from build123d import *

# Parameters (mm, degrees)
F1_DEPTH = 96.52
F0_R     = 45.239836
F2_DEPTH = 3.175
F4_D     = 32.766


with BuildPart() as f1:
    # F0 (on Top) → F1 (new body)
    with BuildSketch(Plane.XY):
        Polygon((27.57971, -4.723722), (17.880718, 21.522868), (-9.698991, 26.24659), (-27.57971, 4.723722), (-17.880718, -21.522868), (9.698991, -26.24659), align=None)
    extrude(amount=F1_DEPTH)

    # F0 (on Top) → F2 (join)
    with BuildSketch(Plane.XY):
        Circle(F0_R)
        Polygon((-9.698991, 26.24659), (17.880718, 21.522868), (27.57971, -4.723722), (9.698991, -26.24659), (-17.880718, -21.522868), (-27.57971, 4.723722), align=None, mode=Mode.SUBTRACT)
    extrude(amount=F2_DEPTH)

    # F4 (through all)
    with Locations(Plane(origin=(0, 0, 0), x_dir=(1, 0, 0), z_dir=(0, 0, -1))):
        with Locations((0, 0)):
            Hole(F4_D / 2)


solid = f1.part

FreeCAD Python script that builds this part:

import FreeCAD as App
import Part
import Sketcher

V = App.Vector
Q = App.Units.Quantity


def add_polygon(sketch, points):
    """Adds a closed chain of lines whose ends are joined by coincident constraints."""
    first, n = sketch.GeometryCount, len(points)
    for a, b in zip(points, points[1:] + points[:1]):
        sketch.addGeometry(Part.LineSegment(App.Vector(*a, 0), App.Vector(*b, 0)), False)
    for i in range(n):
        sketch.addConstraint(Sketcher.Constraint("Coincident", first + i, 2, first + (i + 1) % n, 1))

doc = App.newDocument("Part")
body = doc.addObject("PartDesign::Body", "Body")

# Sketch on XY plane
sketch1 = doc.addObject("Sketcher::SketchObject", "Sketch")
body.addObject(sketch1)
sketch1.AttachmentSupport = (doc.XY_Plane, [""])
sketch1.MapMode = "FlatFace"
add_polygon(sketch1, [(28, -5), (18, 22), (-10, 26), (-28, 5), (-18, -22), (10, -26)])  # lines 0-5
sketch1.addConstraint(Sketcher.Constraint("Symmetric", 0, 2, 3, 2, -1, 1))
sketch1.addConstraint(Sketcher.Constraint("Symmetric", 1, 2, 4, 2, -1, 1))
sketch1.addConstraint(Sketcher.Constraint("Symmetric", 2, 2, 5, 2, -1, 1))
sketch1.addConstraint(Sketcher.Constraint("Equal", 0, 1))
sketch1.addConstraint(Sketcher.Constraint("Equal", 1, 2))
sketch1.addConstraint(Sketcher.Constraint("DistanceX", 1, 2, 4, 2, Q("0.7637001 in")))
sketch1.addConstraint(Sketcher.Constraint("DistanceX", 2, 2, 4, 2, Q("37.278701 mm")))
sketch1.addConstraint(Sketcher.Constraint("DistanceX", -1, 1, 0, 2, Q("17.880718 mm")))
sketch1.addConstraint(Sketcher.Constraint("DistanceY", -1, 1, 1, 2, Q("26.24659 mm")))
pad1 = doc.addObject("PartDesign::Pad", "Pad")
body.addObject(pad1)
pad1.Profile = sketch1
pad1.Length = Q("3.8 in")

# Sketch on XY plane
sketch2 = doc.addObject("Sketcher::SketchObject", "Sketch001")
body.addObject(sketch2)
sketch2.AttachmentSupport = (doc.XY_Plane, [""])
sketch2.MapMode = "FlatFace"
sketch2.addGeometry(Part.Circle(V(0, 0, 0), V(0, 0, 1), 45), False)  # 0
add_polygon(sketch2, [(-28, 5), (-10, 26), (18, 22), (28, -5), (10, -26), (-18, -22)])  # lines 1-6
sketch2.addConstraint(Sketcher.Constraint("Coincident", 0, 3, -1, 1))
sketch2.addConstraint(Sketcher.Constraint("Symmetric", 1, 2, 4, 2, -1, 1))
sketch2.addConstraint(Sketcher.Constraint("Symmetric", 2, 2, 5, 2, -1, 1))
sketch2.addConstraint(Sketcher.Constraint("Symmetric", 3, 2, 6, 2, -1, 1))
sketch2.addConstraint(Sketcher.Constraint("Equal", 1, 2))
sketch2.addConstraint(Sketcher.Constraint("Equal", 2, 3))
sketch2.addConstraint(Sketcher.Constraint("Diameter", 0, Q("90.479672 mm")))
sketch2.addConstraint(Sketcher.Constraint("DistanceX", 1, 2, 4, 2, Q("0.7637001 in")))
sketch2.addConstraint(Sketcher.Constraint("DistanceX", 1, 2, 3, 2, Q("37.278701 mm")))
sketch2.addConstraint(Sketcher.Constraint("DistanceY", -1, 1, 1, 2, Q("26.24659 mm")))
sketch2.addConstraint(Sketcher.Constraint("DistanceX", -1, 1, 2, 2, Q("17.880718 mm")))
pad2 = doc.addObject("PartDesign::Pad", "Pad001")
body.addObject(pad2)
pad2.Profile = sketch2
pad2.Length = Q("0.125 in")

# Sketch on XY plane
sketch3 = doc.addObject("Sketcher::SketchObject", "Sketch002")
body.addObject(sketch3)
sketch3.AttachmentSupport = (doc.XY_Plane, [""])
sketch3.MapMode = "FlatFace"
sketch3.addGeometry(Part.Circle(V(0, 0, 0), V(0, 0, 1), 16), False)
sketch3.addConstraint(Sketcher.Constraint("Coincident", 0, 3, -1, 1))
sketch3.addConstraint(Sketcher.Constraint("Diameter", 0, Q("1.29 in")))
doc.recompute()
hole = doc.addObject("PartDesign::Hole", "Hole")
body.addObject(hole)
hole.Profile = sketch3
hole.ThreadType = "None"
hole.Diameter = Q("1.29 in")
hole.DepthType = "ThroughAll"
hole.Reversed = True

doc.recompute()
